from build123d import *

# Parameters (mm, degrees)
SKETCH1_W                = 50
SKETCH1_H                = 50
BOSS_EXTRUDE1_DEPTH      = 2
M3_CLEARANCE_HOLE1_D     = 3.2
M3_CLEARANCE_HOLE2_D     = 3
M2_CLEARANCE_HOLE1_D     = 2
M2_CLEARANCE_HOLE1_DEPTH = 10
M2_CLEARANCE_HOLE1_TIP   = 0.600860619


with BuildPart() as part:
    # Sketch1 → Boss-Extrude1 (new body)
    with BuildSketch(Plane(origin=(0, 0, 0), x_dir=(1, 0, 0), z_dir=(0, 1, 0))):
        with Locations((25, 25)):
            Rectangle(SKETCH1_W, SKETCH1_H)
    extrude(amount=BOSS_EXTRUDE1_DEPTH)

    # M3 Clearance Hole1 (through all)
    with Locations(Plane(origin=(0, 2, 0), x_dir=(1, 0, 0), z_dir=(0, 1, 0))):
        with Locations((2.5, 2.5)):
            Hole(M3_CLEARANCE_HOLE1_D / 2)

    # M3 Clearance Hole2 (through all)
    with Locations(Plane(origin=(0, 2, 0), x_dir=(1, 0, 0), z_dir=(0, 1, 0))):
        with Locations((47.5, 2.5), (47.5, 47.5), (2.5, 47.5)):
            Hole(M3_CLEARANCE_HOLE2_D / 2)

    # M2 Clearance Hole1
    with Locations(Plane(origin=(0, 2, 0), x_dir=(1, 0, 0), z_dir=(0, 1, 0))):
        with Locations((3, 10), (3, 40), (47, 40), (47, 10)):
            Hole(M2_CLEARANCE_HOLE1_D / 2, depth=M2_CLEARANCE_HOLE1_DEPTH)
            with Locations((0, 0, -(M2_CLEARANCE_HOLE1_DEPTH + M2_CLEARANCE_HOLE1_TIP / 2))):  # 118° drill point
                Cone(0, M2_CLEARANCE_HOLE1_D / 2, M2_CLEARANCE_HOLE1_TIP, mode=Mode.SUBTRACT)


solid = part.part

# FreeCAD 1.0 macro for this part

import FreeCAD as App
import Part
import Sketcher
Q = App.Units.Quantity

doc = App.newDocument("Part")
body = doc.addObject("PartDesign::Body", "Body")

# Sketch on XZ plane
sketch1 = doc.addObject("Sketcher::SketchObject", "Sketch")
body.addObject(sketch1)
sketch1.AttachmentSupport = (doc.XZ_Plane, [""])
sketch1.MapMode = "FlatFace"
sketch1.addGeometry(Part.LineSegment(App.Vector(0, -50, 0), App.Vector(0, 0, 0)), False)
sketch1.addGeometry(Part.LineSegment(App.Vector(0, 0, 0), App.Vector(50, 0, 0)), False)
sketch1.addGeometry(Part.LineSegment(App.Vector(50, 0, 0), App.Vector(50, -50, 0)), False)
sketch1.addGeometry(Part.LineSegment(App.Vector(50, -50, 0), App.Vector(0, -50, 0)), False)
sketch1.addConstraint(Sketcher.Constraint("Coincident", 0, 2, 1, 1))
sketch1.addConstraint(Sketcher.Constraint("Coincident", 1, 2, 2, 1))
sketch1.addConstraint(Sketcher.Constraint("Coincident", 2, 2, 3, 1))
sketch1.addConstraint(Sketcher.Constraint("Coincident", 3, 2, 0, 1))
sketch1.addConstraint(Sketcher.Constraint("Vertical", 0))
sketch1.addConstraint(Sketcher.Constraint("Horizontal", 1))
sketch1.addConstraint(Sketcher.Constraint("Vertical", 2))
sketch1.addConstraint(Sketcher.Constraint("Horizontal", 3))
sketch1.addConstraint(Sketcher.Constraint("Coincident", 0, 2, -1, 1))
sketch1.addConstraint(Sketcher.Constraint("Equal", 3, 0))
sketch1.addConstraint(Sketcher.Constraint("DistanceX", 1, 1, 1, 2, Q("50 mm")))
pad1 = doc.addObject("PartDesign::Pad", "Pad")
body.addObject(pad1)
pad1.Profile = sketch1
pad1.Length = 2
pad1.Reversed = True

# Sketch on XZ plane
sketch2 = doc.addObject("Sketcher::SketchObject", "Sketch001")
body.addObject(sketch2)
sketch2.AttachmentSupport = (doc.XZ_Plane, [""])
sketch2.MapMode = "FlatFace"
sketch2.AttachmentOffset = App.Placement(App.Vector(0, 0, -2), App.Rotation())
sketch2.addGeometry(Part.Circle(App.Vector(2.5, -2.5, 0), App.Vector(0, 0, 1), 1.6), False)
sketch2.addConstraint(Sketcher.Constraint("Diameter", 0, Q("3.2 mm")))
sketch2.addConstraint(Sketcher.Constraint("DistanceX", -1, 1, 0, 3, Q("2.5 mm")))
sketch2.addConstraint(Sketcher.Constraint("DistanceY", 0, 3, -1, 1, Q("2.5 mm")))
doc.recompute()
hole = doc.addObject("PartDesign::Hole", "Hole")
body.addObject(hole)
hole.Profile = sketch2
hole.ThreadType = "None"
hole.Diameter = 3.2
hole.DepthType = "ThroughAll"
hole.Reversed = True

# Sketch on XZ plane
sketch3 = doc.addObject("Sketcher::SketchObject", "Sketch002")
body.addObject(sketch3)
sketch3.AttachmentSupport = (doc.XZ_Plane, [""])
sketch3.MapMode = "FlatFace"
sketch3.AttachmentOffset = App.Placement(App.Vector(0, 0, -2), App.Rotation())
sketch3.addGeometry(Part.Circle(App.Vector(47.5, -2.5, 0), App.Vector(0, 0, 1), 1.5), False)
sketch3.addGeometry(Part.Circle(App.Vector(47.5, -47.5, 0), App.Vector(0, 0, 1), 1.5), False)
sketch3.addGeometry(Part.Circle(App.Vector(2.5, -47.5, 0), App.Vector(0, 0, 1), 1.5), False)
sketch3.addConstraint(Sketcher.Constraint("Equal", 0, 1))
sketch3.addConstraint(Sketcher.Constraint("Equal", 1, 2))
sketch3.addConstraint(Sketcher.Constraint("Horizontal", 1, 3, 2, 3))
sketch3.addConstraint(Sketcher.Constraint("Vertical", 0, 3, 1, 3))
sketch3.addConstraint(Sketcher.Constraint("Diameter", 0, Q("3 mm")))
sketch3.addConstraint(Sketcher.Constraint("DistanceY", 1, 3, 0, 3, Q("45 mm")))
sketch3.addConstraint(Sketcher.Constraint("DistanceX", 2, 3, 1, 3, Q("45 mm")))
sketch3.addConstraint(Sketcher.Constraint("DistanceX", -1, 1, 0, 3, Q("47.5 mm")))
sketch3.addConstraint(Sketcher.Constraint("DistanceY", 0, 3, -1, 1, Q("2.5 mm")))
doc.recompute()
hole2 = doc.addObject("PartDesign::Hole", "Hole001")
body.addObject(hole2)
hole2.Profile = sketch3
hole2.ThreadType = "None"
hole2.Diameter = 3
hole2.DepthType = "ThroughAll"
hole2.Reversed = True

# Sketch on XZ plane
sketch4 = doc.addObject("Sketcher::SketchObject", "Sketch003")
body.addObject(sketch4)
sketch4.AttachmentSupport = (doc.XZ_Plane, [""])
sketch4.MapMode = "FlatFace"
sketch4.AttachmentOffset = App.Placement(App.Vector(0, 0, -2), App.Rotation())
sketch4.addGeometry(Part.Circle(App.Vector(3, -10, 0), App.Vector(0, 0, 1), 1), False)
sketch4.addGeometry(Part.Circle(App.Vector(3, -40, 0), App.Vector(0, 0, 1), 1), False)
sketch4.addGeometry(Part.Circle(App.Vector(47, -40, 0), App.Vector(0, 0, 1), 1), False)
sketch4.addGeometry(Part.Circle(App.Vector(47, -10, 0), App.Vector(0, 0, 1), 1), False)
sketch4.addConstraint(Sketcher.Constraint("Equal", 0, 1))
sketch4.addConstraint(Sketcher.Constraint("Equal", 1, 2))
sketch4.addConstraint(Sketcher.Constraint("Equal", 2, 3))
sketch4.addConstraint(Sketcher.Constraint("Horizontal", 1, 3, 2, 3))
sketch4.addConstraint(Sketcher.Constraint("Horizontal", 0, 3, 3, 3))
sketch4.addConstraint(Sketcher.Constraint("Vertical", 0, 3, 1, 3))
sketch4.addConstraint(Sketcher.Constraint("Vertical", 2, 3, 3, 3))
sketch4.addConstraint(Sketcher.Constraint("Diameter", 0, Q("2 mm")))
sketch4.addConstraint(Sketcher.Constraint("DistanceX", -1, 1, 0, 3, Q("3 mm")))
sketch4.addConstraint(Sketcher.Constraint("DistanceY", 0, 3, -1, 1, Q("10 mm")))
sketch4.addConstraint(Sketcher.Constraint("DistanceY", 1, 3, -1, 1, Q("40 mm")))
sketch4.addConstraint(Sketcher.Constraint("DistanceX", -1, 1, 2, 3, Q("47 mm")))
doc.recompute()
hole3 = doc.addObject("PartDesign::Hole", "Hole002")
body.addObject(hole3)
hole3.Profile = sketch4
hole3.ThreadType = "None"
hole3.Diameter = 2
hole3.DepthType = "Dimension"
hole3.Depth = 10
hole3.DrillPoint = "Angled"
hole3.DrillPointAngle = 118
hole3.Reversed = True

doc.recompute()
